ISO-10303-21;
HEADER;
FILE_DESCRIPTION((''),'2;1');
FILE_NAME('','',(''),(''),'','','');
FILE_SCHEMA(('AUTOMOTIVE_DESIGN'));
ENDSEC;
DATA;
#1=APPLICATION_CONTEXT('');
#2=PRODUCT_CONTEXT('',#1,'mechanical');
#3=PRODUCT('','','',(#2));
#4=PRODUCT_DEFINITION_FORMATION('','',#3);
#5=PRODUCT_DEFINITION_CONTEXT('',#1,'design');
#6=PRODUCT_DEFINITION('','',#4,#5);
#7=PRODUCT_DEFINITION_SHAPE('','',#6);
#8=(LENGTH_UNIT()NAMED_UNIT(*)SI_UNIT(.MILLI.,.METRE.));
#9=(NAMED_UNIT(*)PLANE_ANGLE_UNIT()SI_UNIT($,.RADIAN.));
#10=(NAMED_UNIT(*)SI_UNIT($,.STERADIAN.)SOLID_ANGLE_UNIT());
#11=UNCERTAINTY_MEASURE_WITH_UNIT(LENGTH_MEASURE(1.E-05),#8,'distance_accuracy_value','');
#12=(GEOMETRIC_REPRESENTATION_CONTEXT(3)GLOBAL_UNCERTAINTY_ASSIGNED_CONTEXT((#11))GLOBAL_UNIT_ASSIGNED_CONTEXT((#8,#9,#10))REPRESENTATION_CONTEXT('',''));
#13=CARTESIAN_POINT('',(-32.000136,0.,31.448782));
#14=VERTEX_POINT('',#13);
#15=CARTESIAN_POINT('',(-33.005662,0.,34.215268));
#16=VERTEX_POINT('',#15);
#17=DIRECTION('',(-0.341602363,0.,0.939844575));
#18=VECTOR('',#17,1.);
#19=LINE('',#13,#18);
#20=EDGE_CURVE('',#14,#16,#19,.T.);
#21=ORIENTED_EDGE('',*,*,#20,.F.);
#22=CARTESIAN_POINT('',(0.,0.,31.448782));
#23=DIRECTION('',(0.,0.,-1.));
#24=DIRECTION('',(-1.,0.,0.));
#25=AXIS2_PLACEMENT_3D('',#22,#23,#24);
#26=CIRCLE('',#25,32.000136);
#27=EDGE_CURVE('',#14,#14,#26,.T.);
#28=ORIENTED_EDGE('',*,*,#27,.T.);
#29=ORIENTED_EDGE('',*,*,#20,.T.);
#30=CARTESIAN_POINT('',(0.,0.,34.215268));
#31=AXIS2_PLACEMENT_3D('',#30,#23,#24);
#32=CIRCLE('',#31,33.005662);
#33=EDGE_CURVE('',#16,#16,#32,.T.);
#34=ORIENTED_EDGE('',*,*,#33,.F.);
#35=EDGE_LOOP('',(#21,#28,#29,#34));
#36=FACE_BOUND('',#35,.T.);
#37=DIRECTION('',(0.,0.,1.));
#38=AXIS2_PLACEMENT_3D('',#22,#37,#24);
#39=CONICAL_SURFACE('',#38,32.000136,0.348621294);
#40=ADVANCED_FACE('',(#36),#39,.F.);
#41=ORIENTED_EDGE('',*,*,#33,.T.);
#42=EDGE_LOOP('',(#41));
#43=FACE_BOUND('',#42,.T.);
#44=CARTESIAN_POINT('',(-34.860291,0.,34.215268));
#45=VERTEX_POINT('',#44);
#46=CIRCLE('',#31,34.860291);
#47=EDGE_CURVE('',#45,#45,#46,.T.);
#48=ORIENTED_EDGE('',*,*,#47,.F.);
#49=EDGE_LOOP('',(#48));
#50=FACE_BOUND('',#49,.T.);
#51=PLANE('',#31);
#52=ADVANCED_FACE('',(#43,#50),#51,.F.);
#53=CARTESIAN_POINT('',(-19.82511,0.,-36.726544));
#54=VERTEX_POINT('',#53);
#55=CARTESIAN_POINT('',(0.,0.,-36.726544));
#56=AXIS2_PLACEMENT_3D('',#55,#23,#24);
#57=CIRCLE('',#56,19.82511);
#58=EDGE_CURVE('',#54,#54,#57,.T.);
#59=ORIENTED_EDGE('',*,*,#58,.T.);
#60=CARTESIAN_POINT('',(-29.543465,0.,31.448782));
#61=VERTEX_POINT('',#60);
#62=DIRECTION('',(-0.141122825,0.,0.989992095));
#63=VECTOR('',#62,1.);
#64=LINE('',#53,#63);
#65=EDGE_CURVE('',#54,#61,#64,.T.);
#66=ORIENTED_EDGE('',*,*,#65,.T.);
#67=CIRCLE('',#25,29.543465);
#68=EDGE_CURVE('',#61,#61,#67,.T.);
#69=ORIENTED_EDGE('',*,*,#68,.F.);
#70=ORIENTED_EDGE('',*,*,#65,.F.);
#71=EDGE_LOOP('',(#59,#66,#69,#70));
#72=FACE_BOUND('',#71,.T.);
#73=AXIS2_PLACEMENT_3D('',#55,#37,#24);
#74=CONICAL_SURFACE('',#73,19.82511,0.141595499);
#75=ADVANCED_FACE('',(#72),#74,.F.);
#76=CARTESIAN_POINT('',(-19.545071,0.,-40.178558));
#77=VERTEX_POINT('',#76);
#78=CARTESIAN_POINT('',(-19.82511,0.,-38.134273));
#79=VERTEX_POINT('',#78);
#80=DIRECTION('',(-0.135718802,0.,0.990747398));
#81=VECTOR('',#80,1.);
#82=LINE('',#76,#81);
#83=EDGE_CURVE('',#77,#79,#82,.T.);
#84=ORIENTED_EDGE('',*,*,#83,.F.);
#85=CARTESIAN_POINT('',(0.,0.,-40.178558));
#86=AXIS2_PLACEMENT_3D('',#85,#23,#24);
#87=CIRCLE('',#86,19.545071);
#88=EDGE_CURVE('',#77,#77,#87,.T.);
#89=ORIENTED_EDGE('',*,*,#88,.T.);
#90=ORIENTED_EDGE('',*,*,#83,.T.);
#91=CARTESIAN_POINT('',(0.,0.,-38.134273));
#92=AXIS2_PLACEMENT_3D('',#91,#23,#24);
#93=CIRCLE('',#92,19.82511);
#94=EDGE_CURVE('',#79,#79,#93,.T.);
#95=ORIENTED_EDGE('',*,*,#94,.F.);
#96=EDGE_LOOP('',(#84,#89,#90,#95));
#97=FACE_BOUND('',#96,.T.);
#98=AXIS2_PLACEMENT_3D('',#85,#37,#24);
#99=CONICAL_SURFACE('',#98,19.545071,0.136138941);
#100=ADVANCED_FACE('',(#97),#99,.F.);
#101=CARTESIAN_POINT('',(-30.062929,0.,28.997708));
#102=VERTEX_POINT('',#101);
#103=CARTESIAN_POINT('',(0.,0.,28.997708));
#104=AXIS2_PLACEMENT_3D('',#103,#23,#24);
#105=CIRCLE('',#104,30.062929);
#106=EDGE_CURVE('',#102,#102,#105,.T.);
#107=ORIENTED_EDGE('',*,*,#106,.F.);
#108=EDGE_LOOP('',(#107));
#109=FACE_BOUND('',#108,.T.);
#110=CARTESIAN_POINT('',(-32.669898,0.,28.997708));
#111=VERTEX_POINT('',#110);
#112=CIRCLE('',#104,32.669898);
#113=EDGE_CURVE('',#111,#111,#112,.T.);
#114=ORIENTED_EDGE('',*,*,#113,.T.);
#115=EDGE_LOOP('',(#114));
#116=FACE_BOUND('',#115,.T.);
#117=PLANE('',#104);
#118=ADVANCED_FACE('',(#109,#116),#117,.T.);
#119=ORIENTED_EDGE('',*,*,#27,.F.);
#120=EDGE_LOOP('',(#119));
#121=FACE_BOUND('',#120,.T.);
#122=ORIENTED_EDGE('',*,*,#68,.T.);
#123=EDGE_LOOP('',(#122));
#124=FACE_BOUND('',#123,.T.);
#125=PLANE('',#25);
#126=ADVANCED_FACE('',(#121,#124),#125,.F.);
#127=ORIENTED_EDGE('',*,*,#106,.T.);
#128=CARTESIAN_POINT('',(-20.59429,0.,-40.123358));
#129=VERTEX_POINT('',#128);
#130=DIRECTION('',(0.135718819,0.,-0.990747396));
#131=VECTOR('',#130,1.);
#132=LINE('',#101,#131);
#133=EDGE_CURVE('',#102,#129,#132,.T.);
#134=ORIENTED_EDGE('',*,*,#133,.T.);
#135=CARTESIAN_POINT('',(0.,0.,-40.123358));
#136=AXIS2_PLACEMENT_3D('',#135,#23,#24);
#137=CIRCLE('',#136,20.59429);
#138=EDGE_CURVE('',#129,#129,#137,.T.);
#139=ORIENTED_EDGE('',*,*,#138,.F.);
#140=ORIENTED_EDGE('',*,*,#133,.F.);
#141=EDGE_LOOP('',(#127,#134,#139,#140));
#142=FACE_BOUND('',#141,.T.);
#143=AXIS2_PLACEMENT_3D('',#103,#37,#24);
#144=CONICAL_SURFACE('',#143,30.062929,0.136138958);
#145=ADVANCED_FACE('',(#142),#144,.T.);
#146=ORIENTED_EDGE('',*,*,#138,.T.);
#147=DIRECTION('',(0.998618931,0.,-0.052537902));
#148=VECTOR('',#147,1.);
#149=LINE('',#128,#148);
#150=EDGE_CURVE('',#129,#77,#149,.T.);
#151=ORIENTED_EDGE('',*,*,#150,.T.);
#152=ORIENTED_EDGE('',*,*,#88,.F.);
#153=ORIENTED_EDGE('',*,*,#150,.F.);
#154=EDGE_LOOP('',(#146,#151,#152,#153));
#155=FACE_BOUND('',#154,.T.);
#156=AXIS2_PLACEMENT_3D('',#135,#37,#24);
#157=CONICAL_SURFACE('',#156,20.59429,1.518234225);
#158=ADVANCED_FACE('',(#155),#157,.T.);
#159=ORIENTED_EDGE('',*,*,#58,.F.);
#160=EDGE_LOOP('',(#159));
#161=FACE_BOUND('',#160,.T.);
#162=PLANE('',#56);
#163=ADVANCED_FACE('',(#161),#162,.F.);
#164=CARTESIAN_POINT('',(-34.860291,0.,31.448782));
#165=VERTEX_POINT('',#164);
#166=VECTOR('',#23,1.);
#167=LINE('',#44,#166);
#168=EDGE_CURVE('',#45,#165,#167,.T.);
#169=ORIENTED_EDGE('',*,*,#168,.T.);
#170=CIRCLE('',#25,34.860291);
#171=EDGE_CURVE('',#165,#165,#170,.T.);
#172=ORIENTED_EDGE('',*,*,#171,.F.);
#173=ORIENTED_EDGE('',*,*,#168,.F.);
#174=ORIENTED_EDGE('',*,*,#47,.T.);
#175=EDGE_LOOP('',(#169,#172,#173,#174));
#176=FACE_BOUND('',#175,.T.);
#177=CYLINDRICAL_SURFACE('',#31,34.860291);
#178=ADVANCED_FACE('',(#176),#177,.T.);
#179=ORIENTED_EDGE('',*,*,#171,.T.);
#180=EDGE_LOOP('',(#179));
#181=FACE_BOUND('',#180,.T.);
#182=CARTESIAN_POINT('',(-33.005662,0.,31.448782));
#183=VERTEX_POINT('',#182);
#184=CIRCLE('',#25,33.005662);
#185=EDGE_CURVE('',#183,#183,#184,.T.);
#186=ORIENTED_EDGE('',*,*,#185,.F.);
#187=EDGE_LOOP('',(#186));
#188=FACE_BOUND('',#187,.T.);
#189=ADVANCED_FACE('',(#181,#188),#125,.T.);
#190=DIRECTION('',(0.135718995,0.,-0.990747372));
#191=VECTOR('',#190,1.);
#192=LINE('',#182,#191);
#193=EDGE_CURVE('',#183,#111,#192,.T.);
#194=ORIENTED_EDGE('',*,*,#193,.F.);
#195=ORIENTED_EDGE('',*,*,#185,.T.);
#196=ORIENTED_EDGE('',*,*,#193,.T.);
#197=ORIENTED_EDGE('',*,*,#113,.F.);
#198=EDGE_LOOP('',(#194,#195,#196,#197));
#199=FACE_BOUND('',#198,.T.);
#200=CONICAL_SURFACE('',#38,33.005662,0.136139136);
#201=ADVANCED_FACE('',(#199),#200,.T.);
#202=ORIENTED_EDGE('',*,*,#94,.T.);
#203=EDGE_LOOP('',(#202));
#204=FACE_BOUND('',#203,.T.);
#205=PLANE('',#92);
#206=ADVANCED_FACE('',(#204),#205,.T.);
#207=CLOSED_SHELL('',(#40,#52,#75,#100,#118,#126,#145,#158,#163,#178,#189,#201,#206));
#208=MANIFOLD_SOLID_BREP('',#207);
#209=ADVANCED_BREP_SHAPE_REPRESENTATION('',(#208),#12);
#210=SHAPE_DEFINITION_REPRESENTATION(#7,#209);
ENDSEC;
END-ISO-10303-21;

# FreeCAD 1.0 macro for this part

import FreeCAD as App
import Part
import Sketcher
from FreeCAD import Vector


def add_polygon(sketch, points):
    """Adds a closed chain of lines whose ends are joined by coincident constraints."""
    first, n = sketch.GeometryCount, len(points)
    for a, b in zip(points, points[1:] + points[:1]):
        sketch.addGeometry(Part.LineSegment(App.Vector(*a, 0), App.Vector(*b, 0)), False)
    for i in range(n):
        sketch.addConstraint(Sketcher.Constraint("Coincident", first + i, 2, first + (i + 1) % n, 1))

doc = App.newDocument("Part")
params = doc.addObject("Spreadsheet::Sheet", "Params")
for row, (alias, value) in enumerate([
    ("revolution_angle", "360 deg"),
], start=1):
    params.set(f"A{row}", alias)
    params.set(f"B{row}", "=" + value)
    params.setAlias(f"B{row}", alias)

body = doc.addObject("PartDesign::Body", "Body")

# Sketch on XZ plane
sketch1 = body.newObject("Sketcher::SketchObject", "Sketch")
sketch1.AttachmentSupport = (doc.getObject("XZ_Plane"), [""])
sketch1.MapMode = "FlatFace"
add_polygon(sketch1, [(-32.669898, 28.997708), (-30.062929, 28.997708), (-20.59429, -40.123358), (-19.545071, -40.178558), (-19.82511, -38.134273), (0, -38.134273), (0, -36.726544), (-19.82511, -36.726544), (-29.543465, 31.448782), (-32.000136, 31.448782), (-33.005662, 34.215268), (-34.860291, 34.215268), (-34.860291, 31.448782), (-33.005662, 31.448782)])  # lines 0-13
sketch1.addConstraint(Sketcher.Constraint("Horizontal", 0))
sketch1.addConstraint(Sketcher.Constraint("Horizontal", 4))
sketch1.addConstraint(Sketcher.Constraint("Vertical", 5))
sketch1.addConstraint(Sketcher.Constraint("Horizontal", 6))
sketch1.addConstraint(Sketcher.Constraint("Horizontal", 8))
sketch1.addConstraint(Sketcher.Constraint("Horizontal", 10))
sketch1.addConstraint(Sketcher.Constraint("Vertical", 11))
sketch1.addConstraint(Sketcher.Constraint("Horizontal", 12))
sketch1.addConstraint(Sketcher.Constraint("PointOnObject", 4, 2, -2))
sketch1.addConstraint(Sketcher.Constraint("Parallel", 1, 3))
sketch1.addConstraint(Sketcher.Constraint("Parallel", 3, 13))
sketch1.addConstraint(Sketcher.Constraint("Horizontal", 8, 2, 11, 2))
sketch1.addConstraint(Sketcher.Constraint("Vertical", 3, 2, 6, 2))
sketch1.addConstraint(Sketcher.Constraint("Vertical", 9, 2, 12, 2))
sketch1.addConstraint(Sketcher.Constraint("DistanceX", 0, 1, 0, 2, 2.606969))
sketch1.addConstraint(Sketcher.Constraint("DistanceX", 4, 1, 4, 2, 19.82511))
sketch1.addConstraint(Sketcher.Constraint("DistanceX", 8, 2, 8, 1, 2.456671))
sketch1.addConstraint(Sketcher.Constraint("DistanceX", 10, 2, 10, 1, 1.854629))
sketch1.addConstraint(Sketcher.Constraint("DistanceY", 5, 1, 5, 2, 1.407729))
sketch1.addConstraint(Sketcher.Constraint("DistanceX", 13, 2, -1, 1, 32.669898))
sketch1.addConstraint(Sketcher.Constraint("DistanceY", 2, 2, 1, 2, 0.0552))
sketch1.addConstraint(Sketcher.Constraint("Distance", 1, 69.766589))
sketch1.addConstraint(Sketcher.Constraint("Distance", 2, 1.05067))
sketch1.addConstraint(Sketcher.Constraint("DistanceY", 11, 2, 11, 1, 2.766486))
sketch1.addConstraint(Sketcher.Constraint("DistanceX", 1, 2, -1, 1, 20.59429))
sketch1.addConstraint(Sketcher.Constraint("DistanceY", 1, 2, -1, 1, 40.123358))
sketch1.addConstraint(Sketcher.Constraint("DistanceY", -1, 1, 9, 2, 34.215268))
sketch1.addConstraint(Sketcher.Constraint("Distance", 7, 68.864516))
revolution = body.newObject("PartDesign::Revolution", "Revolution")
revolution.Profile = sketch1
revolution.ReferenceAxis = (sketch1, ["V_Axis"])
revolution.setExpression("Angle", "Params.revolution_angle")

doc.recompute()
